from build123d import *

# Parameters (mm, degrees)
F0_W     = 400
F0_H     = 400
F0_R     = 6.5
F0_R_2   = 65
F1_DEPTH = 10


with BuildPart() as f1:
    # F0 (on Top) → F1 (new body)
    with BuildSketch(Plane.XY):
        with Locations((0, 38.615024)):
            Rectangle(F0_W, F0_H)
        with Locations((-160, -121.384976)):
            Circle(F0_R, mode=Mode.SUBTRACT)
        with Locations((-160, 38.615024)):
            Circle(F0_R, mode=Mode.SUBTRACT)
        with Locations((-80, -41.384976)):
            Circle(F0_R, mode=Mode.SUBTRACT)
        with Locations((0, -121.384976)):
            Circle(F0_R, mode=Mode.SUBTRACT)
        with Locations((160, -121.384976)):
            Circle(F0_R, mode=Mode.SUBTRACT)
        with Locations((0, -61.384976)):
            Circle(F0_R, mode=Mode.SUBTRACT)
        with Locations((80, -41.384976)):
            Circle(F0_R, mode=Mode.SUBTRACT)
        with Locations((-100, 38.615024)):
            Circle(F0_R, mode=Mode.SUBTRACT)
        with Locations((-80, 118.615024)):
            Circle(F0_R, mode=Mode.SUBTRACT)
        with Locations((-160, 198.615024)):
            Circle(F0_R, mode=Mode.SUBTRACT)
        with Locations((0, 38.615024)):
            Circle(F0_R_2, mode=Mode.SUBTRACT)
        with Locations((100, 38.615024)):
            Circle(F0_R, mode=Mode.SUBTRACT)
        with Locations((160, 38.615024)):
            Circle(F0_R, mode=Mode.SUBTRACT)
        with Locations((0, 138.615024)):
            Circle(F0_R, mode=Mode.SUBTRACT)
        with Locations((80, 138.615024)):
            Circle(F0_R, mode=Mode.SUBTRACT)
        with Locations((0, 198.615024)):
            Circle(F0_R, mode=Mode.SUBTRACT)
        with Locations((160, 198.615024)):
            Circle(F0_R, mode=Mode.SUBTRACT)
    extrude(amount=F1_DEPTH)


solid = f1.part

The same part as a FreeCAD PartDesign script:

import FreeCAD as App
import Part
import Sketcher

V = App.Vector
Q = App.Units.Quantity


def add_polygon(sketch, points):
    """Adds a closed chain of lines whose ends are joined by coincident constraints."""
    first, n = sketch.GeometryCount, len(points)
    for a, b in zip(points, points[1:] + points[:1]):
        sketch.addGeometry(Part.LineSegment(App.Vector(*a, 0), App.Vector(*b, 0)), False)
    for i in range(n):
        sketch.addConstraint(Sketcher.Constraint("Coincident", first + i, 2, first + (i + 1) % n, 1))

doc = App.newDocument("Part")
body = doc.addObject("PartDesign::Body", "Body")

sketch1 = body.newObject("Sketcher::SketchObject", "Sketch")
sketch1.AttachmentSupport = (doc.getObject("XY_Plane"), [""])
sketch1.MapMode = "FlatFace"
add_polygon(sketch1, [(-200, 239), (-200, -161), (200, -161), (200, 239)])
sketch1.addGeometry(Part.Circle(V(-160, -121, 0), V(0, 0, 1), 6), False)
sketch1.addGeometry(Part.Circle(V(-80, -41, 0), V(0, 0, 1), 6), False)
sketch1.addGeometry(Part.Circle(V(0, -121, 0), V(0, 0, 1), 6), False)
sketch1.addGeometry(Part.Circle(V(0, -61, 0), V(0, 0, 1), 6), False)
sketch1.addGeometry(Part.Circle(V(160, -121, 0), V(0, 0, 1), 6), False)
sketch1.addGeometry(Part.Circle(V(80, -41, 0), V(0, 0, 1), 6), False)
sketch1.addGeometry(Part.Circle(V(-160, 39, 0), V(0, 0, 1), 6), False)
sketch1.addGeometry(Part.Circle(V(-100, 39, 0), V(0, 0, 1), 6), False)
sketch1.addGeometry(Part.Circle(V(-80, 119, 0), V(0, 0, 1), 6), False)
sketch1.addGeometry(Part.Circle(V(-160, 199, 0), V(0, 0, 1), 6), False)
sketch1.addGeometry(Part.Circle(V(0, 39, 0), V(0, 0, 1), 65), False)
sketch1.addGeometry(Part.Circle(V(100, 39, 0), V(0, 0, 1), 6), False)
sketch1.addGeometry(Part.Circle(V(160, 39, 0), V(0, 0, 1), 6), False)
sketch1.addGeometry(Part.Circle(V(0, 139, 0), V(0, 0, 1), 6), False)
sketch1.addGeometry(Part.Circle(V(80, 139, 0), V(0, 0, 1), 6), False)
sketch1.addGeometry(Part.Circle(V(0, 199, 0), V(0, 0, 1), 6), False)
sketch1.addGeometry(Part.Circle(V(160, 199, 0), V(0, 0, 1), 6), False)
sketch1.addConstraint([
    Sketcher.Constraint("Vertical", 0),
    Sketcher.Constraint("Horizontal", 1),
    Sketcher.Constraint("Vertical", 2),
    Sketcher.Constraint("Horizontal", 3),
    Sketcher.Constraint("Equal", 4, 5),
    Sketcher.Constraint("Equal", 5, 6),
    Sketcher.Constraint("Equal", 6, 7),
    Sketcher.Constraint("Equal", 7, 8),
    Sketcher.Constraint("Equal", 8, 9),
    Sketcher.Constraint("Equal", 9, 10),
    Sketcher.Constraint("Equal", 10, 11),
    Sketcher.Constraint("Equal", 11, 12),
    Sketcher.Constraint("Equal", 12, 13),
    Sketcher.Constraint("Equal", 13, 15),
    Sketcher.Constraint("Equal", 15, 16),
    Sketcher.Constraint("Equal", 16, 17),
    Sketcher.Constraint("Equal", 17, 18),
    Sketcher.Constraint("Equal", 18, 19),
    Sketcher.Constraint("Equal", 19, 20),
    Sketcher.Constraint("Symmetric", 4, 3, 8, 3, -2),
    Sketcher.Constraint("Symmetric", 5, 3, 9, 3, -2),
    Sketcher.Constraint("Symmetric", 11, 3, 15, 3, -2),
    Sketcher.Constraint("Symmetric", 10, 3, 16, 3, -2),
    Sketcher.Constraint("Symmetric", 13, 3, 20, 3, -2),
    Sketcher.Constraint("PointOnObject", 6, 3, -2),
    Sketcher.Constraint("PointOnObject", 7, 3, -2),
    Sketcher.Constraint("PointOnObject", 14, 3, -2),
    Sketcher.Constraint("PointOnObject", 17, 3, -2),
    Sketcher.Constraint("PointOnObject", 19, 3, -2),
    Sketcher.Constraint("Horizontal", 4, 3, 6, 3),
    Sketcher.Constraint("Horizontal", 10, 3, 11, 3),
    Sketcher.Constraint("Horizontal", 11, 3, 14, 3),
    Sketcher.Constraint("Horizontal", 17, 3, 18, 3),
    Sketcher.Constraint("Horizontal", 13, 3, 19, 3),
    Sketcher.Constraint("Vertical", 4, 3, 10, 3),
    Sketcher.Constraint("Vertical", 5, 3, 12, 3),
    Sketcher.Constraint("Vertical", 10, 3, 13, 3),
    Sketcher.Constraint("Vertical", 9, 3, 18, 3),
    Sketcher.Constraint("Equal", 3, 0),
    Sketcher.Constraint("Diameter", 4, Q("13 mm")),
    Sketcher.Constraint("Diameter", 14, Q("130 mm")),
    Sketcher.Constraint("DistanceX", 1, 1, 1, 2, Q("400 mm")),
    Sketcher.Constraint("DistanceX", 4, 3, -1, 1, Q("160 mm")),
    Sketcher.Constraint("DistanceX", 5, 3, -1, 1, Q("80 mm")),
    Sketcher.Constraint("DistanceX", 11, 3, -1, 1, Q("100 mm")),
    Sketcher.Constraint("DistanceX", 0, 2, -1, 1, Q("200 mm")),
    Sketcher.Constraint("DistanceY", 4, 3, 5, 3, Q("80 mm")),
    Sketcher.Constraint("DistanceY", 6, 3, 7, 3, Q("60 mm")),
    Sketcher.Constraint("DistanceY", 5, 3, 10, 3, Q("80 mm")),
    Sketcher.Constraint("DistanceY", 11, 3, 12, 3, Q("80 mm")),
    Sketcher.Constraint("DistanceY", 12, 3, 13, 3, Q("80 mm")),
    Sketcher.Constraint("DistanceY", 12, 3, 17, 3, Q("20 mm")),
    Sketcher.Constraint("DistanceY", 0, 2, 4, 3, Q("40 mm")),
    Sketcher.Constraint("DistanceY", 4, 3, -1, 1, Q("121.384976 mm")),
])
pad1 = body.newObject("PartDesign::Pad", "Pad")
pad1.Profile = sketch1
pad1.Length = 10

doc.recompute()
